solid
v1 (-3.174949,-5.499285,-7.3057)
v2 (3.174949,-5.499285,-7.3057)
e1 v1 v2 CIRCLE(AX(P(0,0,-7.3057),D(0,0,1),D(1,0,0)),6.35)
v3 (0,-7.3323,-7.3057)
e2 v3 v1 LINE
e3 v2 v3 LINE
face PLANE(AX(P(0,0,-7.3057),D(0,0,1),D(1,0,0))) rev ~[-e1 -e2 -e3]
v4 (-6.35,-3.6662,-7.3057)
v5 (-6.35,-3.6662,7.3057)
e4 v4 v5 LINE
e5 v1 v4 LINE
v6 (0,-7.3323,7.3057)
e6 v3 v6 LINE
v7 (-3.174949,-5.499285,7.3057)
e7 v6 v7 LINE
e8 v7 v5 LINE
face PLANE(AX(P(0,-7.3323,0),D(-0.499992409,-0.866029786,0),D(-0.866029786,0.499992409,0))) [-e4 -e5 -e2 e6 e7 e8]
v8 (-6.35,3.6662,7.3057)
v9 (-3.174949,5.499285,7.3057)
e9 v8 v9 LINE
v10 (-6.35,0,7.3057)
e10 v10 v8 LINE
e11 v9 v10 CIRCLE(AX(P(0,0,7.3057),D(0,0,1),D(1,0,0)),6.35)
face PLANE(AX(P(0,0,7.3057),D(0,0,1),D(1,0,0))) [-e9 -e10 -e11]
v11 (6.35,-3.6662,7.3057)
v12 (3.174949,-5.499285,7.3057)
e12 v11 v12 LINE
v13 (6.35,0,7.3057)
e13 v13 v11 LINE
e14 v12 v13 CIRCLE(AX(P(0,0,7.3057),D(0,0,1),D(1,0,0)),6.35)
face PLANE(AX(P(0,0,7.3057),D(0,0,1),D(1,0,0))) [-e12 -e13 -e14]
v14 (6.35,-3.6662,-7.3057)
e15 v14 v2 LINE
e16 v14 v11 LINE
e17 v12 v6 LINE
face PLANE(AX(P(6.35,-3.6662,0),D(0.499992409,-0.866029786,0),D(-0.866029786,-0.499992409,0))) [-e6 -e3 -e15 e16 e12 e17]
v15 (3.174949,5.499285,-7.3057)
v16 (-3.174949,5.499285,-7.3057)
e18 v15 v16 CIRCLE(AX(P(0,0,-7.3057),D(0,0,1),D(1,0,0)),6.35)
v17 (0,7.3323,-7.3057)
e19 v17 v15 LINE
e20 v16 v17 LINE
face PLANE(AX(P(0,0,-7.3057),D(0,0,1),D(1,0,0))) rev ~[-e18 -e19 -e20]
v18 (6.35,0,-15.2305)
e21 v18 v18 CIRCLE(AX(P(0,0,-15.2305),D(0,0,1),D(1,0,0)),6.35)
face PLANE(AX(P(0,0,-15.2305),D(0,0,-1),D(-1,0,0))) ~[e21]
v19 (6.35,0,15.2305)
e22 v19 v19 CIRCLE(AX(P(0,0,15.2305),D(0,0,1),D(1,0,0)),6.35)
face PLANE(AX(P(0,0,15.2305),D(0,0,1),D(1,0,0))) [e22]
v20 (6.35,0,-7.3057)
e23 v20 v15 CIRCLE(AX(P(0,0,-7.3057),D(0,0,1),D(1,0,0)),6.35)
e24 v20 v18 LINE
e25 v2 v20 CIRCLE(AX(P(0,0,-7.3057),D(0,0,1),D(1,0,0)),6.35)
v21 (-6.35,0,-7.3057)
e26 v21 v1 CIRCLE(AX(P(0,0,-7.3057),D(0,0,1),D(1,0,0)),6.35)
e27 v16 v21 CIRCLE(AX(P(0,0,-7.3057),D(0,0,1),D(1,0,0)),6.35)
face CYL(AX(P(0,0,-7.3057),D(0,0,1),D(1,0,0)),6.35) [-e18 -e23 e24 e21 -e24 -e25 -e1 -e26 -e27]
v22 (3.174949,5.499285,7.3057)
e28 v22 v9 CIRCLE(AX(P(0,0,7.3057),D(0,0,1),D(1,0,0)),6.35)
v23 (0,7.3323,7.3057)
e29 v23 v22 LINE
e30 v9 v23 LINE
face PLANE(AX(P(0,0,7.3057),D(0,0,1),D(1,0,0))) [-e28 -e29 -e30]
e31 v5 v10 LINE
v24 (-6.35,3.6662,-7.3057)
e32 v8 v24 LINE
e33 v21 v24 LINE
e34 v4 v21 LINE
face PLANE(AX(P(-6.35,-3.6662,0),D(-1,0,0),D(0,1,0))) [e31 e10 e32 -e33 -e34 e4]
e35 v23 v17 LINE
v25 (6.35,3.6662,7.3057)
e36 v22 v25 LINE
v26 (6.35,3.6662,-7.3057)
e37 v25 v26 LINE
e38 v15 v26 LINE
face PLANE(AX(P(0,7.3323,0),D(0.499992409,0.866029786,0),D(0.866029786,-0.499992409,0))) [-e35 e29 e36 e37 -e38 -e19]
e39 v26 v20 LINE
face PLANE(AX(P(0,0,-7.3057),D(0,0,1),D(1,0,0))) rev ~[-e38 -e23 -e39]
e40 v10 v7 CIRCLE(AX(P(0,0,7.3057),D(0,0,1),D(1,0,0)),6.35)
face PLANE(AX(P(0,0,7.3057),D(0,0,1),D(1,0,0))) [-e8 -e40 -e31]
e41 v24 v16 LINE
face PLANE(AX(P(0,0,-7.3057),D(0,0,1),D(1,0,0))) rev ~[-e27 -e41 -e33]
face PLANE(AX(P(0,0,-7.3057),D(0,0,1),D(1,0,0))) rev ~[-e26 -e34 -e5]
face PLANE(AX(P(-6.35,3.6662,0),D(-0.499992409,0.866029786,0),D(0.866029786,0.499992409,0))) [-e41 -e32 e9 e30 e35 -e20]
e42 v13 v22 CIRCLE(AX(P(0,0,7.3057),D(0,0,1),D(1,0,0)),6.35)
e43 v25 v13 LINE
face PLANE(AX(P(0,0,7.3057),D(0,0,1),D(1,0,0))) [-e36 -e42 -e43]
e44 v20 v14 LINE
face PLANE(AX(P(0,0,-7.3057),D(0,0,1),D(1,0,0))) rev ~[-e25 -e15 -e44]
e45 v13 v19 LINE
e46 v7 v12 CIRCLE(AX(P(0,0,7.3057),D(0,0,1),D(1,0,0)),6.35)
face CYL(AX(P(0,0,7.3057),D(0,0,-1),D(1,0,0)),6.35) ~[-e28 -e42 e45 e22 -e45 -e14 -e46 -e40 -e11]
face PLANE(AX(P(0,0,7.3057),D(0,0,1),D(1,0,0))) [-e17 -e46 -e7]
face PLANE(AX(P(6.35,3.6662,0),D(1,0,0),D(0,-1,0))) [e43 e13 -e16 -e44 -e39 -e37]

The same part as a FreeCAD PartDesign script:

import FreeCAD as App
import Part
import Sketcher

V = App.Vector
Q = App.Units.Quantity


def add_polygon(sketch, points):
    """Adds a closed chain of lines whose ends are joined by coincident constraints."""
    first, n = sketch.GeometryCount, len(points)
    for a, b in zip(points, points[1:] + points[:1]):
        sketch.addGeometry(Part.LineSegment(App.Vector(*a, 0), App.Vector(*b, 0)), False)
    for i in range(n):
        sketch.addConstraint(Sketcher.Constraint("Coincident", first + i, 2, first + (i + 1) % n, 1))

doc = App.newDocument("Part")
body = doc.addObject("PartDesign::Body", "Body")

# Sketch on XY plane
sketch1 = body.newObject("Sketcher::SketchObject", "Sketch")
sketch1.AttachmentSupport = (doc.getObject("XY_Plane"), [""])
sketch1.MapMode = "FlatFace"
add_polygon(sketch1, [(-6, 4), (-6, -4), (0, -7), (6, -4), (6, 4), (0, 7)])  # lines 0-5
sketch1.addConstraint(Sketcher.Constraint("Vertical", 0))
sketch1.addConstraint(Sketcher.Constraint("Vertical", 3))
sketch1.addConstraint(Sketcher.Constraint("Symmetric", 0, 2, 3, 2, -1, 1))
sketch1.addConstraint(Sketcher.Constraint("Symmetric", 1, 2, 4, 2, -1, 1))
sketch1.addConstraint(Sketcher.Constraint("PointOnObject", 1, 2, -2))
sketch1.addConstraint(Sketcher.Constraint("Parallel", 2, 5))
sketch1.addConstraint(Sketcher.Constraint("Horizontal", 0, 2, 2, 2))
sketch1.addConstraint(Sketcher.Constraint("DistanceX", 0, 2, 2, 2, Q("0.5 in")))
sketch1.addConstraint(Sketcher.Constraint("Angle", 1, Q("-29.9995 deg")))
sketch1.addConstraint(Sketcher.Constraint("DistanceY", 1, 2, 3, 2, Q("0.433 in")))
pad1 = body.newObject("PartDesign::Pad", "Pad")
pad1.Profile = sketch1
pad1.Length = 14.6114
pad1.Midplane = True

# Sketch on XY plane
sketch2 = body.newObject("Sketcher::SketchObject", "Sketch001")
sketch2.AttachmentSupport = (doc.getObject("XY_Plane"), [""])
sketch2.MapMode = "FlatFace"
sketch2.AttachmentOffset = App.Placement(V(0, 0, 7.3057), App.Rotation())
sketch2.addGeometry(Part.Circle(V(0, 0, 0), V(0, 0, 1), 6), False)
sketch2.addConstraint(Sketcher.Constraint("Coincident", 0, 3, -1, 1))
sketch2.addConstraint(Sketcher.Constraint("Diameter", 0, Q("0.5 in")))
pad2 = body.newObject("PartDesign::Pad", "Pad001")
pad2.Profile = sketch2
pad2.Length = Q("0.312 in")
doc.recompute()

mirrored = body.newObject("PartDesign::Mirrored", "Mirrored")
mirrored.Originals = [pad2]
mirrored.MirrorPlane = (doc.getObject("XY_Plane"), [""])
body.Tip = mirrored

doc.recompute()
